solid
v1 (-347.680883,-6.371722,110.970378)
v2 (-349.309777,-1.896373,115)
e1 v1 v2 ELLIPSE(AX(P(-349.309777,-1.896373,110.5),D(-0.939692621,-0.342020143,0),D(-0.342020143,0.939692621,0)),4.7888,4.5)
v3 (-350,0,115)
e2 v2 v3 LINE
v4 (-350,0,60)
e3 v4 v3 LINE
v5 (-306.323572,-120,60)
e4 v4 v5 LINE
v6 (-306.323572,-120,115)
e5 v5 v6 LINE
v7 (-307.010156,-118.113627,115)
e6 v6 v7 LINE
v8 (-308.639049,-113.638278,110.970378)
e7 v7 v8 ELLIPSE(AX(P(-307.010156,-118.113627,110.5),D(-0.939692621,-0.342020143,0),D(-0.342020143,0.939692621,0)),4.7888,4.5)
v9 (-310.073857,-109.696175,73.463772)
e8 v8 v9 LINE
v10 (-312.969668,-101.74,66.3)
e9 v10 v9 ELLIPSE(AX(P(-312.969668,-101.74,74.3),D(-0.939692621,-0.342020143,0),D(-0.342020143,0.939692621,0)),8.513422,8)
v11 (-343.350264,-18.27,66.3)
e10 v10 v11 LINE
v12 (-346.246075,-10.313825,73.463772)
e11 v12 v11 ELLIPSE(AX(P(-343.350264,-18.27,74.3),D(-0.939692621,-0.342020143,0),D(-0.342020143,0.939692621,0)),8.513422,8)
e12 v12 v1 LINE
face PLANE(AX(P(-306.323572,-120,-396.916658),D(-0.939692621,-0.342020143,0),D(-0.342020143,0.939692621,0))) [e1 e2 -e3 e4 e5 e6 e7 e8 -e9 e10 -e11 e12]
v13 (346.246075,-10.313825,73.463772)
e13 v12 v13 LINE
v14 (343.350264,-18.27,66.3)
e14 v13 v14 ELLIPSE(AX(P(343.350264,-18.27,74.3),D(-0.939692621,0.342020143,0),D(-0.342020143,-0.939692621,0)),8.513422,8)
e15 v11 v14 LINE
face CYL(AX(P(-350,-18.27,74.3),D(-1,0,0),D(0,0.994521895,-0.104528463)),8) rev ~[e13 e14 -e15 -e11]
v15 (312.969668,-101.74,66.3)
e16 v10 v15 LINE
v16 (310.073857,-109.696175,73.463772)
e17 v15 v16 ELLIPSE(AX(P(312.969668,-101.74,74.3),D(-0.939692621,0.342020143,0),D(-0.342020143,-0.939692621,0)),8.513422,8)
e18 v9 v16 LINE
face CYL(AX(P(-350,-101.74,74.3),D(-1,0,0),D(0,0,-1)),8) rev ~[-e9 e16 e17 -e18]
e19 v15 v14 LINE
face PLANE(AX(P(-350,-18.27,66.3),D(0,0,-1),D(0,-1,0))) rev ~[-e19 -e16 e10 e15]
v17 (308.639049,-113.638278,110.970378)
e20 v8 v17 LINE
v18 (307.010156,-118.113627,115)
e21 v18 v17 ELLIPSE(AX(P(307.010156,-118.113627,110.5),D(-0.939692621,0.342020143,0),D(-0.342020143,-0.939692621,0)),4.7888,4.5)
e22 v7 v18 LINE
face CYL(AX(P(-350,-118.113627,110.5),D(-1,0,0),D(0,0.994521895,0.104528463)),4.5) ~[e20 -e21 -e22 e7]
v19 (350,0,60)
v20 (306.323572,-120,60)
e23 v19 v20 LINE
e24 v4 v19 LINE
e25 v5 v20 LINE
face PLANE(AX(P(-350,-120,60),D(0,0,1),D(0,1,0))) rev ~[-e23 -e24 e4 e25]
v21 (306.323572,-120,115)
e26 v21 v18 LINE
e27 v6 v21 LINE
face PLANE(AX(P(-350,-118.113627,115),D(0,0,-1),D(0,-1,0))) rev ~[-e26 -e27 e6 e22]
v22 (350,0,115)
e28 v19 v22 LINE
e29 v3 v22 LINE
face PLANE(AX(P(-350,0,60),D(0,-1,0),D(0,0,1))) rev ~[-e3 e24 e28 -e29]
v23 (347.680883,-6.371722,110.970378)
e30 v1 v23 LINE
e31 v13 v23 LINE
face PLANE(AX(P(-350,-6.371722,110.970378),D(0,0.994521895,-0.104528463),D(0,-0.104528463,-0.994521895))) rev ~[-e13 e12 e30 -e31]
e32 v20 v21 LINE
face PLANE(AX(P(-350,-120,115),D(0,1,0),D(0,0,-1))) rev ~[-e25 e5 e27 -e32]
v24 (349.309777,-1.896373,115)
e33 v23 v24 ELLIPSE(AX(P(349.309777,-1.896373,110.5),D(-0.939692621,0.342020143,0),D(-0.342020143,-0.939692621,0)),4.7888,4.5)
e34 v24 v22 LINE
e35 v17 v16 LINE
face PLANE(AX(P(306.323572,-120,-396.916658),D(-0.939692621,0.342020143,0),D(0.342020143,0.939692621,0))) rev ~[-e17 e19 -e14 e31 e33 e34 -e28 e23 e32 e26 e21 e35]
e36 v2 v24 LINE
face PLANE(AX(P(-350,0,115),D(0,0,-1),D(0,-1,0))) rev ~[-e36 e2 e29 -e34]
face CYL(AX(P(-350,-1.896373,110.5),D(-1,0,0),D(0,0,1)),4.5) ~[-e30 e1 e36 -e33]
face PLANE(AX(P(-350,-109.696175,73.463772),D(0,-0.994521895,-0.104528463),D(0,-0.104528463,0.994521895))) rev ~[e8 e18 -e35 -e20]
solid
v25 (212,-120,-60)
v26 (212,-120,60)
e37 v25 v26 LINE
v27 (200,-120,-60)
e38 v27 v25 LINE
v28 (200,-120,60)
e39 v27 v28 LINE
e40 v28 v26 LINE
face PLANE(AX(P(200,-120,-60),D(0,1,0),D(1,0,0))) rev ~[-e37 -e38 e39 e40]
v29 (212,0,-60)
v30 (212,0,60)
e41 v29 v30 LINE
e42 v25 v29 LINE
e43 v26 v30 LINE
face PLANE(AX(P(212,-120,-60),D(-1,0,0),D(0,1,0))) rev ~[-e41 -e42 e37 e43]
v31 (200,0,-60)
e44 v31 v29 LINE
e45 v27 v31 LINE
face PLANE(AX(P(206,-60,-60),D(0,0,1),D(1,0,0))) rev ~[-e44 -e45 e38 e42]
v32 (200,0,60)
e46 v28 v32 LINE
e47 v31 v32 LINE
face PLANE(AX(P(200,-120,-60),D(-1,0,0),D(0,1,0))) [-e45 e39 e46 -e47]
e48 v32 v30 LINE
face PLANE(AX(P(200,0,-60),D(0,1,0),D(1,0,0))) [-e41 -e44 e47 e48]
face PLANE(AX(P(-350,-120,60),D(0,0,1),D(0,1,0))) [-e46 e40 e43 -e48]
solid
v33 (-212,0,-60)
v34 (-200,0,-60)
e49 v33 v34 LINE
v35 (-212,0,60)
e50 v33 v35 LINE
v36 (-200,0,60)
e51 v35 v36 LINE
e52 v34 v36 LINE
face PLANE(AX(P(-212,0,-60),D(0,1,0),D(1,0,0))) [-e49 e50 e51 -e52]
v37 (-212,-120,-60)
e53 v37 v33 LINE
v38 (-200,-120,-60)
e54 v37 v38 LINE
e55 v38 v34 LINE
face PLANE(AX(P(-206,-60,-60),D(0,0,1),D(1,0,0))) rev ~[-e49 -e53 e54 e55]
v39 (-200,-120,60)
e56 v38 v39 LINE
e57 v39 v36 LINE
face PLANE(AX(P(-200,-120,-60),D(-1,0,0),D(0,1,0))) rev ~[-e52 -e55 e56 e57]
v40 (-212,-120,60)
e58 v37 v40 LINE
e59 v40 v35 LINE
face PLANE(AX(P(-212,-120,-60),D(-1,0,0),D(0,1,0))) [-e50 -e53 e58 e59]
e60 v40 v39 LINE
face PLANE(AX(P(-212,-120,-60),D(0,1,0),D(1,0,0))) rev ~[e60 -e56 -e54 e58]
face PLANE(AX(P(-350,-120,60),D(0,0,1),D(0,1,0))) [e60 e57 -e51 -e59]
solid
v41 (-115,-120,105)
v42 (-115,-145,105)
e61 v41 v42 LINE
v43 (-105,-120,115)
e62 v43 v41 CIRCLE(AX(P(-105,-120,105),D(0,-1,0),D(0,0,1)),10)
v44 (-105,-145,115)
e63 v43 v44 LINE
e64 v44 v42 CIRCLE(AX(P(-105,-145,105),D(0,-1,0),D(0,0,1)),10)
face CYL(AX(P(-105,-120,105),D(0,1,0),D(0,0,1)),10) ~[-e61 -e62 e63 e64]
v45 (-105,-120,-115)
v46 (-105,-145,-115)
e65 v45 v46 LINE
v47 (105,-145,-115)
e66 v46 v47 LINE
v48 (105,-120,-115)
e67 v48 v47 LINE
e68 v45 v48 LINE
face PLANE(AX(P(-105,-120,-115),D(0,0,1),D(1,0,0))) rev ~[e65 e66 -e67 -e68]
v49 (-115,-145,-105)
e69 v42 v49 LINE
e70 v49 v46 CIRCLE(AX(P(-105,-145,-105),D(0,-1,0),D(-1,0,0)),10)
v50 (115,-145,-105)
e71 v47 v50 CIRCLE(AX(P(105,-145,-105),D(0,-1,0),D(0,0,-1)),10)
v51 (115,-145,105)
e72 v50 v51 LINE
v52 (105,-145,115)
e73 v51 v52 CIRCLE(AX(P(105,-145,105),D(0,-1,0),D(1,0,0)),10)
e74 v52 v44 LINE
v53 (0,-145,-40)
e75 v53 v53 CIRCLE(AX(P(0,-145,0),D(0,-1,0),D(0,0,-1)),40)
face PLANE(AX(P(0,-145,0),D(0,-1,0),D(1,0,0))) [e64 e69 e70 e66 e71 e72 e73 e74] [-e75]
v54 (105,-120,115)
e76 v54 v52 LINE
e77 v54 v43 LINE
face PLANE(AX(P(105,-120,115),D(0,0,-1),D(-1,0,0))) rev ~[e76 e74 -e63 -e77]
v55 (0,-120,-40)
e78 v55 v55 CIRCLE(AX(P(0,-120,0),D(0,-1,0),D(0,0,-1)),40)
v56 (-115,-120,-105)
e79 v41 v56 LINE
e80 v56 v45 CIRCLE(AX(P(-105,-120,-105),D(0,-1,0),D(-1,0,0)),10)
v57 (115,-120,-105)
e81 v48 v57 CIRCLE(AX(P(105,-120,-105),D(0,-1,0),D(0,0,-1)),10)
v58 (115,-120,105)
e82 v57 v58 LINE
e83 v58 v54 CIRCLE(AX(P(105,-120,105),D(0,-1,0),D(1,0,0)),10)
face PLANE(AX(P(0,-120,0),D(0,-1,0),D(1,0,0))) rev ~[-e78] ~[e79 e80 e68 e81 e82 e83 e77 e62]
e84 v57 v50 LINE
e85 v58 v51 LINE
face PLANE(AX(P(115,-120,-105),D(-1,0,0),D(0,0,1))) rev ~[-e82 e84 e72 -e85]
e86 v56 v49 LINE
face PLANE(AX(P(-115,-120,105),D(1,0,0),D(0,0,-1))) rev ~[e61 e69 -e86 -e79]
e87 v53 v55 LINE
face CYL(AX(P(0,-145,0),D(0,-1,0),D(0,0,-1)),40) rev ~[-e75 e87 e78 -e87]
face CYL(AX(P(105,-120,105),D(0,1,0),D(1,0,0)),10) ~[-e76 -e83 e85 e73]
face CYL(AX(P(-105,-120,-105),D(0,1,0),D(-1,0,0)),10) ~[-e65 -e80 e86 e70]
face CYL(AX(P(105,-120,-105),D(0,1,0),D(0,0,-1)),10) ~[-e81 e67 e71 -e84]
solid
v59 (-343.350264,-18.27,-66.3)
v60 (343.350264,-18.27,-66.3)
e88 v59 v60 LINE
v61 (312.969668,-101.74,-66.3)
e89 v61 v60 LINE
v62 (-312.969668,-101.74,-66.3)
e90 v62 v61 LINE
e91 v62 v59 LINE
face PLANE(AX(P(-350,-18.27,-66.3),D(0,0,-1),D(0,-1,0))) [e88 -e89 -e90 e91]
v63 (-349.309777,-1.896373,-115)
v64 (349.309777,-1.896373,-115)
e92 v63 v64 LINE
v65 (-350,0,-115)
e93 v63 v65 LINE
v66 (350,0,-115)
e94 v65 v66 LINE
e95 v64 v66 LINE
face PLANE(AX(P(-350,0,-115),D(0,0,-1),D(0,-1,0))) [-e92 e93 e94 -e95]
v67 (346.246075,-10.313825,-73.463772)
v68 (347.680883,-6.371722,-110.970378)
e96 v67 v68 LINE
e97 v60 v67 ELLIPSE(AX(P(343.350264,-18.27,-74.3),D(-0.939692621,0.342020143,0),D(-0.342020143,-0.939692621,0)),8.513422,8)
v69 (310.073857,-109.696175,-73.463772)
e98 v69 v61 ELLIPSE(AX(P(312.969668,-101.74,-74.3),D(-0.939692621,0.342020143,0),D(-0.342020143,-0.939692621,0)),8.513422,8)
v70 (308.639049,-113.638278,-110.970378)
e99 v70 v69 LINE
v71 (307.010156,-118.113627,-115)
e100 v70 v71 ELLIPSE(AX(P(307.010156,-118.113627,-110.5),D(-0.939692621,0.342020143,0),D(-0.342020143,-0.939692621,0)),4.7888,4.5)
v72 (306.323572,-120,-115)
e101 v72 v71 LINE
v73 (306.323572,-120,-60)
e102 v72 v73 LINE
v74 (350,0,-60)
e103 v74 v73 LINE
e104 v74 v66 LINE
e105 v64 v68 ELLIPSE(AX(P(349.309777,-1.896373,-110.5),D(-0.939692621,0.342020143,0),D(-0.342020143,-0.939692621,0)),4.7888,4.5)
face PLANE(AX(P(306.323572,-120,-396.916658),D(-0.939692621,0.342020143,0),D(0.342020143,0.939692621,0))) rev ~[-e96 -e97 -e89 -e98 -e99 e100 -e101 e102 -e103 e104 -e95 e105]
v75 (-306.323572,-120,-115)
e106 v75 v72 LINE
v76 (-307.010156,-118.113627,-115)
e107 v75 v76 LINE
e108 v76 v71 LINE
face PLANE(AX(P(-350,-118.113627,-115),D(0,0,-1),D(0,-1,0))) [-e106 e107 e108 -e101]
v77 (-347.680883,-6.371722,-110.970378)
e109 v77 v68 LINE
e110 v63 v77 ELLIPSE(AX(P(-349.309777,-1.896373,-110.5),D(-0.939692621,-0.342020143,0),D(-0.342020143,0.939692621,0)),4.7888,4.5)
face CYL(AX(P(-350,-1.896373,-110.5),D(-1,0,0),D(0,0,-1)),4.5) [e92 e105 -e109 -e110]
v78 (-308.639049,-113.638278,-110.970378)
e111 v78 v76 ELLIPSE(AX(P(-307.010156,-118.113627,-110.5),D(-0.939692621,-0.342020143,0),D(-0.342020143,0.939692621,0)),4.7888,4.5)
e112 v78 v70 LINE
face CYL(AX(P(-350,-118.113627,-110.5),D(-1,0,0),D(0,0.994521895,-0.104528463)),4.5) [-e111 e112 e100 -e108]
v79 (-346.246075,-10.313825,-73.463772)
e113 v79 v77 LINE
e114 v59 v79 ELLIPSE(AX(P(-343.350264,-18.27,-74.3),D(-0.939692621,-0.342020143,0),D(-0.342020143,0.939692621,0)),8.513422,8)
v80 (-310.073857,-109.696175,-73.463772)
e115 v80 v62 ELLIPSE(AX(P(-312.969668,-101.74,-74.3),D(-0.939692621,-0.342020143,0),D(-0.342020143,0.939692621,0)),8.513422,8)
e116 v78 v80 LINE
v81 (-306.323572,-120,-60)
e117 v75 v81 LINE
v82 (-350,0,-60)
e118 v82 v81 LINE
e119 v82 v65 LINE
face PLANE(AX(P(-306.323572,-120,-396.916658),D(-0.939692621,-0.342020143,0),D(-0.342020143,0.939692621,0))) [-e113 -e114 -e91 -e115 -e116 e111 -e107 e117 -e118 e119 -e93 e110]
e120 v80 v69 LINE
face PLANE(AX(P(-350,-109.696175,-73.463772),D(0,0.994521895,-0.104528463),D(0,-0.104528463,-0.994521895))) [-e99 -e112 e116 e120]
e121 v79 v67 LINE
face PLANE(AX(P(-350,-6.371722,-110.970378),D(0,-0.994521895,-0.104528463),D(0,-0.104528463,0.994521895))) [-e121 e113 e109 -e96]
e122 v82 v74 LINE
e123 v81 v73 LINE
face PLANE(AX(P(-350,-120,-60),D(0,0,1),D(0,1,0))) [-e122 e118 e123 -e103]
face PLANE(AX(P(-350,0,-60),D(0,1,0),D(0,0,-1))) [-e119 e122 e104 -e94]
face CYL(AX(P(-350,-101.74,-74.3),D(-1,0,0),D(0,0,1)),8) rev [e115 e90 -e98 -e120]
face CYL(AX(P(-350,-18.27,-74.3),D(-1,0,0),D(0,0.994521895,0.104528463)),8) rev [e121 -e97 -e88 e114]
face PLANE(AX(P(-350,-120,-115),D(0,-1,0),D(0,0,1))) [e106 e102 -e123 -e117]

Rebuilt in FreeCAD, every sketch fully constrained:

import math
import FreeCAD as App
import Part
import Sketcher
from FreeCAD import Vector
Q = App.Units.Quantity


def add_polygon(sketch, points):
    """Adds a closed chain of lines whose ends are joined by coincident constraints."""
    first, n = sketch.GeometryCount, len(points)
    for a, b in zip(points, points[1:] + points[:1]):
        sketch.addGeometry(Part.LineSegment(App.Vector(*a, 0), App.Vector(*b, 0)), False)
    for i in range(n):
        sketch.addConstraint(Sketcher.Constraint("Coincident", first + i, 2, first + (i + 1) % n, 1))

doc = App.newDocument("Part")
body = doc.addObject("PartDesign::Body", "Body")

# Sketch on YZ plane
sketch1 = body.newObject("Sketcher::SketchObject", "Sketch")
sketch1.AttachmentSupport = (doc.getObject("YZ_Plane"), [""])
sketch1.MapMode = "FlatFace"
sketch1.AttachmentOffset = App.Placement(Vector(0, 0, -350), App.Rotation())
sketch1.addGeometry([
    Part.LineSegment(Vector(-120, 115, 0), Vector(-120, 60, 0)),  # 0
    Part.LineSegment(Vector(-120, 60, 0), Vector(0, 60, 0)),  # 1
    Part.LineSegment(Vector(0, 60, 0), Vector(0, 115, 0)),  # 2
    Part.LineSegment(Vector(0, 115, 0), Vector(-1.9, 115, 0)),  # 3
    Part.ArcOfCircle(Part.Circle(Vector(-1.9, 110.5, 0), Vector(0, 0, 1), 4.5), math.radians(90), math.radians(174)),  # 4
    Part.LineSegment(Vector(-6.4, 111, 0), Vector(-10.3, 73.5, 0)),  # 5
    Part.ArcOfCircle(Part.Circle(Vector(-18.3, 74.3, 0), Vector(0, 0, 1), 8), math.radians(-90), math.radians(-6)),  # 6
    Part.LineSegment(Vector(-18.3, 66.3, 0), Vector(-101.7, 66.3, 0)),  # 7
    Part.ArcOfCircle(Part.Circle(Vector(-101.7, 74.3, 0), Vector(0, 0, 1), 8), math.radians(-174), math.radians(-90)),  # 8
    Part.LineSegment(Vector(-109.7, 73.5, 0), Vector(-113.6, 111, 0)),  # 9
    Part.ArcOfCircle(Part.Circle(Vector(-118.1, 110.5, 0), Vector(0, 0, 1), 4.5), math.radians(6), math.radians(90)),  # 10
    Part.LineSegment(Vector(-118.1, 115, 0), Vector(-120, 115, 0)),  # 11
], False)
sketch1.addConstraint([
    Sketcher.Constraint("Coincident", 0, 2, 1, 1),
    Sketcher.Constraint("Coincident", 1, 2, 2, 1),
    Sketcher.Constraint("Coincident", 2, 2, 3, 1),
    Sketcher.Constraint("Tangent", 3, 2, 4, 1),
    Sketcher.Constraint("Tangent", 4, 2, 5, 1),
    Sketcher.Constraint("Tangent", 5, 2, 6, 2),
    Sketcher.Constraint("Tangent", 6, 1, 7, 1),
    Sketcher.Constraint("Tangent", 7, 2, 8, 2),
    Sketcher.Constraint("Tangent", 8, 1, 9, 1),
    Sketcher.Constraint("Tangent", 9, 2, 10, 1),
    Sketcher.Constraint("Tangent", 10, 2, 11, 1),
    Sketcher.Constraint("Coincident", 11, 2, 0, 1),
    Sketcher.Constraint("Vertical", 0),
    Sketcher.Constraint("Horizontal", 1),
    Sketcher.Constraint("Vertical", 2),
    Sketcher.Constraint("Horizontal", 3),
    Sketcher.Constraint("Horizontal", 7),
    Sketcher.Constraint("Horizontal", 11),
    Sketcher.Constraint("Equal", 6, 8),
    Sketcher.Constraint("Equal", 4, 10),
    Sketcher.Constraint("PointOnObject", 1, 2, -2),
    Sketcher.Constraint("Horizontal", 4, 3, 10, 3),
    Sketcher.Constraint("Horizontal", 5, 2, 8, 1),
    Sketcher.Constraint("Radius", 6, 8.0),
    Sketcher.Constraint("Radius", 4, 4.5),
    Sketcher.Constraint("DistanceX", 1, 1, 1, 2, 120.0),
    Sketcher.Constraint("DistanceY", 0, 2, 0, 1, 55.0),
    Sketcher.Constraint("Angle", 5, Q("-96 deg")),
    Sketcher.Constraint("DistanceY", -1, 1, 0, 2, 60.0),
    Sketcher.Constraint("DistanceX", 7, 2, 7, 1, 83.47),
    Sketcher.Constraint("DistanceY", -1, 1, 6, 3, 74.3),
    Sketcher.Constraint("DistanceX", 6, 3, -1, 1, 18.27),
])
pad1 = body.newObject("PartDesign::Pad", "Pad")
pad1.Profile = sketch1
pad1.Length = 700
body2 = doc.addObject("PartDesign::Body", "Body001")

# Sketch on YZ plane
sketch2 = body2.newObject("Sketcher::SketchObject", "Sketch001")
sketch2.AttachmentSupport = (doc.getObject("YZ_Plane001"), [""])
sketch2.MapMode = "FlatFace"
sketch2.AttachmentOffset = App.Placement(Vector(0, 0, -350), App.Rotation())
sketch2.addGeometry([
    Part.LineSegment(Vector(-120, -115, 0), Vector(-120, -60, 0)),  # 0
    Part.LineSegment(Vector(-120, -60, 0), Vector(0, -60, 0)),  # 1
    Part.LineSegment(Vector(0, -60, 0), Vector(0, -115, 0)),  # 2
    Part.LineSegment(Vector(0, -115, 0), Vector(-1.9, -115, 0)),  # 3
    Part.ArcOfCircle(Part.Circle(Vector(-1.9, -110.5, 0), Vector(0, 0, 1), 4.5), math.radians(-174), math.radians(-90)),  # 4
    Part.LineSegment(Vector(-6.4, -111, 0), Vector(-10.3, -73.5, 0)),  # 5
    Part.ArcOfCircle(Part.Circle(Vector(-18.3, -74.3, 0), Vector(0, 0, 1), 8), math.radians(6), math.radians(90)),  # 6
    Part.LineSegment(Vector(-18.3, -66.3, 0), Vector(-101.7, -66.3, 0)),  # 7
    Part.ArcOfCircle(Part.Circle(Vector(-101.7, -74.3, 0), Vector(0, 0, 1), 8), math.radians(90), math.radians(174)),  # 8
    Part.LineSegment(Vector(-109.7, -73.5, 0), Vector(-113.6, -111, 0)),  # 9
    Part.ArcOfCircle(Part.Circle(Vector(-118.1, -110.5, 0), Vector(0, 0, 1), 4.5), math.radians(-90), math.radians(-6)),  # 10
    Part.LineSegment(Vector(-118.1, -115, 0), Vector(-120, -115, 0)),  # 11
], False)
sketch2.addConstraint([
    Sketcher.Constraint("Coincident", 0, 2, 1, 1),
    Sketcher.Constraint("Coincident", 1, 2, 2, 1),
    Sketcher.Constraint("Coincident", 2, 2, 3, 1),
    Sketcher.Constraint("Tangent", 3, 2, 4, 2),
    Sketcher.Constraint("Tangent", 4, 1, 5, 1),
    Sketcher.Constraint("Tangent", 5, 2, 6, 1),
    Sketcher.Constraint("Tangent", 6, 2, 7, 1),
    Sketcher.Constraint("Tangent", 7, 2, 8, 1),
    Sketcher.Constraint("Tangent", 8, 2, 9, 1),
    Sketcher.Constraint("Tangent", 9, 2, 10, 2),
    Sketcher.Constraint("Tangent", 10, 1, 11, 1),
    Sketcher.Constraint("Coincident", 11, 2, 0, 1),
    Sketcher.Constraint("Vertical", 0),
    Sketcher.Constraint("Horizontal", 1),
    Sketcher.Constraint("Vertical", 2),
    Sketcher.Constraint("Horizontal", 3),
    Sketcher.Constraint("Horizontal", 7),
    Sketcher.Constraint("Horizontal", 11),
    Sketcher.Constraint("Equal", 6, 8),
    Sketcher.Constraint("Equal", 4, 10),
    Sketcher.Constraint("PointOnObject", 1, 2, -2),
    Sketcher.Constraint("Horizontal", 4, 3, 10, 3),
    Sketcher.Constraint("Horizontal", 5, 2, 8, 2),
    Sketcher.Constraint("Radius", 6, 8.0),
    Sketcher.Constraint("Radius", 4, 4.5),
    Sketcher.Constraint("DistanceX", 1, 1, 1, 2, 120.0),
    Sketcher.Constraint("DistanceY", 0, 1, 0, 2, 55.0),
    Sketcher.Constraint("Angle", 5, Q("96 deg")),
    Sketcher.Constraint("DistanceY", 0, 2, -1, 1, 60.0),
    Sketcher.Constraint("DistanceX", 7, 2, 7, 1, 83.47),
    Sketcher.Constraint("DistanceY", 6, 3, -1, 1, 74.3),
    Sketcher.Constraint("DistanceX", 6, 3, -1, 1, 18.27),
])
pad2 = body2.newObject("PartDesign::Pad", "Pad001")
pad2.Profile = sketch2
pad2.Length = 700
body3 = doc.addObject("PartDesign::Body", "Body002")
body3.AllowCompound = True

# Sketch on XY plane
sketch3 = body3.newObject("Sketcher::SketchObject", "Sketch002")
sketch3.AttachmentSupport = (doc.getObject("XY_Plane002"), [""])
sketch3.MapMode = "FlatFace"
sketch3.AttachmentOffset = App.Placement(Vector(0, 0, -60), App.Rotation())
add_polygon(sketch3, [(-212, 0), (-212, -120), (-200, -120), (-200, 0)])  # lines 0-3
sketch3.addConstraint([
    Sketcher.Constraint("Vertical", 0),
    Sketcher.Constraint("Horizontal", 1),
    Sketcher.Constraint("Vertical", 2),
    Sketcher.Constraint("Horizontal", 3),
    Sketcher.Constraint("PointOnObject", 2, 2, -1),
    Sketcher.Constraint("DistanceX", 1, 1, 1, 2, 12.0),
    Sketcher.Constraint("DistanceY", 0, 2, 0, 1, 120.0),
    Sketcher.Constraint("DistanceX", 0, 2, -1, 1, 212.0),
])
pad3 = body3.newObject("PartDesign::Pad", "Pad002")
pad3.Profile = sketch3
pad3.Length = 120

# Sketch on XY plane
sketch4 = body3.newObject("Sketcher::SketchObject", "Sketch003")
sketch4.AttachmentSupport = (doc.getObject("XY_Plane002"), [""])
sketch4.MapMode = "FlatFace"
sketch4.AttachmentOffset = App.Placement(Vector(0, 0, -60), App.Rotation())
add_polygon(sketch4, [(200, 0), (200, -120), (212, -120), (212, 0)])  # lines 0-3
sketch4.addConstraint([
    Sketcher.Constraint("Vertical", 0),
    Sketcher.Constraint("Horizontal", 1),
    Sketcher.Constraint("Vertical", 2),
    Sketcher.Constraint("Horizontal", 3),
    Sketcher.Constraint("PointOnObject", 2, 2, -1),
    Sketcher.Constraint("DistanceX", 1, 1, 1, 2, 12.0),
    Sketcher.Constraint("DistanceY", 0, 2, 0, 1, 120.0),
    Sketcher.Constraint("DistanceX", -1, 1, 0, 2, 200.0),
])
pad4 = body3.newObject("PartDesign::Pad", "Pad003")
pad4.Profile = sketch4
pad4.Length = 120
body4 = doc.addObject("PartDesign::Body", "Body003")

# Sketch on XZ plane
sketch5 = body4.newObject("Sketcher::SketchObject", "Sketch004")
sketch5.AttachmentSupport = (doc.getObject("XZ_Plane003"), [""])
sketch5.MapMode = "FlatFace"
sketch5.AttachmentOffset = App.Placement(Vector(0, 0, 120), App.Rotation())
sketch5.addGeometry([
    Part.LineSegment(Vector(-105, -115, 0), Vector(105, -115, 0)),  # 0
    Part.ArcOfCircle(Part.Circle(Vector(105, -105, 0), Vector(0, 0, 1), 10), math.radians(-90), math.radians(0)),  # 1
    Part.LineSegment(Vector(115, -105, 0), Vector(115, 105, 0)),  # 2
    Part.ArcOfCircle(Part.Circle(Vector(105, 105, 0), Vector(0, 0, 1), 10), math.radians(0), math.radians(90)),  # 3
    Part.LineSegment(Vector(105, 115, 0), Vector(-105, 115, 0)),  # 4
    Part.ArcOfCircle(Part.Circle(Vector(-105, 105, 0), Vector(0, 0, 1), 10), math.radians(90), math.radians(180)),  # 5
    Part.LineSegment(Vector(-115, 105, 0), Vector(-115, -105, 0)),  # 6
    Part.ArcOfCircle(Part.Circle(Vector(-105, -105, 0), Vector(0, 0, 1), 10), math.radians(180), math.radians(270)),  # 7
], False)
sketch5.addConstraint([
    Sketcher.Constraint("Tangent", 0, 2, 1, 1),
    Sketcher.Constraint("Tangent", 1, 2, 2, 1),
    Sketcher.Constraint("Tangent", 2, 2, 3, 1),
    Sketcher.Constraint("Tangent", 3, 2, 4, 1),
    Sketcher.Constraint("Tangent", 4, 2, 5, 1),
    Sketcher.Constraint("Tangent", 5, 2, 6, 1),
    Sketcher.Constraint("Tangent", 6, 2, 7, 1),
    Sketcher.Constraint("Tangent", 7, 2, 0, 1),
    Sketcher.Constraint("Horizontal", 0),
    Sketcher.Constraint("Vertical", 2),
    Sketcher.Constraint("Horizontal", 4),
    Sketcher.Constraint("Vertical", 6),
    Sketcher.Constraint("Equal", 1, 3),
    Sketcher.Constraint("Equal", 3, 5),
    Sketcher.Constraint("Equal", 5, 7),
    Sketcher.Constraint("Symmetric", 1, 3, 5, 3, -1, 1),
    Sketcher.Constraint("Equal", 4, 2),
    Sketcher.Constraint("Radius", 1, 10.0),
    Sketcher.Constraint("DistanceX", 0, 1, 0, 2, 210.0),
])
pad5 = body4.newObject("PartDesign::Pad", "Pad004")
pad5.Profile = sketch5
pad5.Length = 25

# Sketch on XZ plane
sketch6 = body4.newObject("Sketcher::SketchObject", "Sketch005")
sketch6.AttachmentSupport = (doc.getObject("XZ_Plane003"), [""])
sketch6.MapMode = "FlatFace"
sketch6.AttachmentOffset = App.Placement(Vector(0, 0, 145), App.Rotation())
sketch6.addGeometry(Part.Circle(Vector(0, 0, 0), Vector(0, 0, 1), 40), False)
sketch6.addConstraint([
    Sketcher.Constraint("Coincident", 0, 3, -1, 1),
    Sketcher.Constraint("Diameter", 0, 80.0),
])
pocket1 = body4.newObject("PartDesign::Pocket", "Pocket")
pocket1.Profile = sketch6
pocket1.Length = 25
body5 = doc.addObject("PartDesign::Body", "Body004")
body5.AllowCompound = True

# Sketch on XY plane
sketch7 = body5.newObject("Sketcher::SketchObject", "Sketch006")
sketch7.AttachmentSupport = (doc.getObject("XY_Plane004"), [""])
sketch7.MapMode = "FlatFace"
add_polygon(sketch7, [(-350, 0), (-350, -120), (-306, -120)])  # lines 0-2
add_polygon(sketch7, [(350, -120), (350, 0), (306, -120)])  # lines 3-5
sketch7.addConstraint([
    Sketcher.Constraint("Vertical", 0),
    Sketcher.Constraint("Horizontal", 1),
    Sketcher.Constraint("Vertical", 3),
    Sketcher.Constraint("Horizontal", 5),
    Sketcher.Constraint("Symmetric", 2, 2, 3, 2, -1, 1),
    Sketcher.Constraint("Symmetric", 1, 2, 4, 2, -2),
    Sketcher.Constraint("PointOnObject", 2, 2, -1),
    Sketcher.Constraint("DistanceY", 0, 2, 0, 1, 120.0),
    Sketcher.Constraint("Angle", 2, Q("110 deg")),
    Sketcher.Constraint("DistanceX", 0, 2, -1, 1, 350.0),
])
pad6 = body5.newObject("PartDesign::Pad", "Pad005")
pad6.Profile = sketch7
pad6.Type = "TwoLengths"
pad6.Length = 396.916658
pad6.Length2 = 396.916658
doc.recompute()

body6 = doc.addObject("PartDesign::Body", "Body005")
body6.BaseFeature = body5
boolean = body.newObject("PartDesign::Boolean", "Boolean")
boolean.Type = "Cut"
boolean.addObjects([body6])
doc.recompute()

boolean2 = body2.newObject("PartDesign::Boolean", "Boolean001")
boolean2.Type = "Cut"
boolean2.addObjects([body5])

doc.recompute()
